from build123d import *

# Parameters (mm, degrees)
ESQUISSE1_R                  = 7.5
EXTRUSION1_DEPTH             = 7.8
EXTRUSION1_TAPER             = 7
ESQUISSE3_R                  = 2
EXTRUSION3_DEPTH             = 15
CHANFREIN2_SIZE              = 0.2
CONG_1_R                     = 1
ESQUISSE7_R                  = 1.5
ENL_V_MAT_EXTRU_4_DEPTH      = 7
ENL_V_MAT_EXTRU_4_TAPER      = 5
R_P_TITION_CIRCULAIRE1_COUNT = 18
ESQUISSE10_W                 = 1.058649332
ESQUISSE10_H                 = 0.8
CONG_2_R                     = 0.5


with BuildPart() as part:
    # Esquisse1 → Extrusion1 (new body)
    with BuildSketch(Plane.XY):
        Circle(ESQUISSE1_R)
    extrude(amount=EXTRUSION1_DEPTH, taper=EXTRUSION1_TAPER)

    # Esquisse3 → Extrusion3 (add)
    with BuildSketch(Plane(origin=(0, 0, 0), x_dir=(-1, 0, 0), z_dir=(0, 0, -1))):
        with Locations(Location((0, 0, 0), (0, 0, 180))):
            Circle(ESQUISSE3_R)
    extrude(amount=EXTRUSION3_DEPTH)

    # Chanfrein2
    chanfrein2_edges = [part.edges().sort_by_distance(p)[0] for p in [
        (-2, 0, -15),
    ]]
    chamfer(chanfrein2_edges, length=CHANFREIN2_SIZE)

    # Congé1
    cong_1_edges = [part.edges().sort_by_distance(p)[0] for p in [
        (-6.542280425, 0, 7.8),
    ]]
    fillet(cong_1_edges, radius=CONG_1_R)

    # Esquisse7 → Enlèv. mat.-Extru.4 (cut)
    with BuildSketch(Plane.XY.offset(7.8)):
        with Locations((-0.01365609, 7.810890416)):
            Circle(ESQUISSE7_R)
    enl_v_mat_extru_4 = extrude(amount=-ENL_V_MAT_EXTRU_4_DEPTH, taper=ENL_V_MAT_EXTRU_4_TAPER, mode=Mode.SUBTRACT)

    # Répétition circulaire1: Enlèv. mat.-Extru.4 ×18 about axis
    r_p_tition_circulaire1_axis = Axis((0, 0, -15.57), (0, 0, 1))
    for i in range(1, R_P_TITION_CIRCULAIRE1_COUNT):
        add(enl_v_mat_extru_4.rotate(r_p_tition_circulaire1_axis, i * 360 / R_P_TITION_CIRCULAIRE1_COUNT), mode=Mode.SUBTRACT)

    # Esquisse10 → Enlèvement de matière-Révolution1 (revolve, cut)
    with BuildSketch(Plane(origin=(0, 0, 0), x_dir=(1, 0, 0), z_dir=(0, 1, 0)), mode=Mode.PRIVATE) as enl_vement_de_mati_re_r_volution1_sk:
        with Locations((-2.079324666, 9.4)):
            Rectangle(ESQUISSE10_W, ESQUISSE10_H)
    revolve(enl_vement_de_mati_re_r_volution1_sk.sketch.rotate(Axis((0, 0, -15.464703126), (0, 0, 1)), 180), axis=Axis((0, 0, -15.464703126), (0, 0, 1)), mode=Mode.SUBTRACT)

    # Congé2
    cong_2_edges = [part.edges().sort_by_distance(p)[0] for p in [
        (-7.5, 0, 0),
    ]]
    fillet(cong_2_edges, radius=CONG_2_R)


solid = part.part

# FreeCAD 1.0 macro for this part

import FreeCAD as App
import Part
import Sketcher
from FreeCAD import Vector


def edges_at(feature, points):
    """Names of the edges that pass closest to the given points."""
    edges = feature.Shape.Edges
    near = lambda p: min(range(len(edges)), key=lambda i: edges[i].distToShape(Part.Vertex(*p))[0])
    return sorted({f"Edge{near(p) + 1}" for p in points})


def add_polygon(sketch, points):
    """Adds a closed chain of lines whose ends are joined by coincident constraints."""
    first, n = sketch.GeometryCount, len(points)
    for a, b in zip(points, points[1:] + points[:1]):
        sketch.addGeometry(Part.LineSegment(App.Vector(*a, 0), App.Vector(*b, 0)), False)
    for i in range(n):
        sketch.addConstraint(Sketcher.Constraint("Coincident", first + i, 2, first + (i + 1) % n, 1))

doc = App.newDocument("Part")
body = doc.addObject("PartDesign::Body", "Body")

# Sketch on XY plane
sketch1 = doc.addObject("Sketcher::SketchObject", "Sketch")
body.addObject(sketch1)
sketch1.AttachmentSupport = (doc.XY_Plane, [""])
sketch1.MapMode = "FlatFace"
sketch1.addGeometry(Part.Circle(Vector(0, 0, 0), Vector(0, 0, 1), 8), False)
sketch1.addConstraint(Sketcher.Constraint("Coincident", 0, 3, -1, 1))
sketch1.addConstraint(Sketcher.Constraint("Diameter", 0, 15.0))
pad1 = doc.addObject("PartDesign::Pad", "Pad")
body.addObject(pad1)
pad1.Profile = sketch1
pad1.Length = 7.8
pad1.TaperAngle = -7

# Sketch on XY plane
sketch2 = doc.addObject("Sketcher::SketchObject", "Sketch001")
body.addObject(sketch2)
sketch2.AttachmentSupport = (doc.XY_Plane, [""])
sketch2.MapMode = "FlatFace"
sketch2.addGeometry(Part.Circle(Vector(0, 0, 0), Vector(0, 0, 1), 2), False)
sketch2.addConstraint(Sketcher.Constraint("Coincident", 0, 3, -1, 1))
sketch2.addConstraint(Sketcher.Constraint("Diameter", 0, 4.0))
pad2 = doc.addObject("PartDesign::Pad", "Pad001")
body.addObject(pad2)
pad2.Profile = sketch2
pad2.Length = 15
pad2.Reversed = True
doc.recompute()

chamfer = doc.addObject("PartDesign::Chamfer", "Chamfer")
body.addObject(chamfer)
chamfer.Base = (pad2, edges_at(pad2, [(-2, 0, -15)]))
chamfer.Size = 0.2
doc.recompute()

fillet = doc.addObject("PartDesign::Fillet", "Fillet")
body.addObject(fillet)
fillet.Base = (chamfer, edges_at(chamfer, [(-6.542, 0, 7.8)]))
fillet.Radius = 1

# Sketch on XY plane
sketch3 = doc.addObject("Sketcher::SketchObject", "Sketch002")
body.addObject(sketch3)
sketch3.AttachmentSupport = (doc.XY_Plane, [""])
sketch3.MapMode = "FlatFace"
sketch3.AttachmentOffset = App.Placement(Vector(0, 0, 7.8), App.Rotation())
sketch3.addGeometry(Part.Circle(Vector(0, 7.8, 0), Vector(0, 0, 1), 1.5), False)
sketch3.addConstraint(Sketcher.Constraint("Diameter", 0, 3.0))
sketch3.addConstraint(Sketcher.Constraint("DistanceY", -1, 1, 0, 3, 7.81089))
sketch3.addConstraint(Sketcher.Constraint("DistanceX", 0, 3, -1, 1, 0.013656))
pocket1 = doc.addObject("PartDesign::Pocket", "Pocket")
body.addObject(pocket1)
pocket1.Profile = sketch3
pocket1.Length = 7
pocket1.TaperAngle = -5
doc.recompute()

polarpattern = doc.addObject("PartDesign::PolarPattern", "PolarPattern")
body.addObject(polarpattern)
polarpattern.Originals = [pocket1]
polarpattern.Axis = (doc.Z_Axis, [""])
polarpattern.Angle = 360
polarpattern.Occurrences = 18
body.Tip = polarpattern

# Sketch on XZ plane
sketch4 = doc.addObject("Sketcher::SketchObject", "Sketch003")
body.addObject(sketch4)
sketch4.AttachmentSupport = (doc.XZ_Plane, [""])
sketch4.MapMode = "FlatFace"
add_polygon(sketch4, [(-2.6, -9.8), (-2.6, -9), (-1.6, -9), (-1.6, -9.8)])  # lines 0-3
sketch4.addConstraint(Sketcher.Constraint("Vertical", 0))
sketch4.addConstraint(Sketcher.Constraint("Horizontal", 1))
sketch4.addConstraint(Sketcher.Constraint("Vertical", 2))
sketch4.addConstraint(Sketcher.Constraint("Horizontal", 3))
sketch4.addConstraint(Sketcher.Constraint("DistanceY", 0, 1, 0, 2, 0.8))
sketch4.addConstraint(Sketcher.Constraint("DistanceY", 0, 2, -1, 1, 9.0))
sketch4.addConstraint(Sketcher.Constraint("DistanceX", 1, 2, -1, 1, 1.55))
sketch4.addConstraint(Sketcher.Constraint("DistanceX", 1, 1, 1, 2, 1.058649))
groove = doc.addObject("PartDesign::Groove", "Groove")
body.addObject(groove)
groove.Profile = sketch4
groove.ReferenceAxis = (sketch4, ["V_Axis"])
groove.Angle = 360
doc.recompute()

fillet2 = doc.addObject("PartDesign::Fillet", "Fillet001")
body.addObject(fillet2)
fillet2.Base = (groove, edges_at(groove, [(-7.5, 0, 0)]))
fillet2.Radius = 0.5

doc.recompute()
